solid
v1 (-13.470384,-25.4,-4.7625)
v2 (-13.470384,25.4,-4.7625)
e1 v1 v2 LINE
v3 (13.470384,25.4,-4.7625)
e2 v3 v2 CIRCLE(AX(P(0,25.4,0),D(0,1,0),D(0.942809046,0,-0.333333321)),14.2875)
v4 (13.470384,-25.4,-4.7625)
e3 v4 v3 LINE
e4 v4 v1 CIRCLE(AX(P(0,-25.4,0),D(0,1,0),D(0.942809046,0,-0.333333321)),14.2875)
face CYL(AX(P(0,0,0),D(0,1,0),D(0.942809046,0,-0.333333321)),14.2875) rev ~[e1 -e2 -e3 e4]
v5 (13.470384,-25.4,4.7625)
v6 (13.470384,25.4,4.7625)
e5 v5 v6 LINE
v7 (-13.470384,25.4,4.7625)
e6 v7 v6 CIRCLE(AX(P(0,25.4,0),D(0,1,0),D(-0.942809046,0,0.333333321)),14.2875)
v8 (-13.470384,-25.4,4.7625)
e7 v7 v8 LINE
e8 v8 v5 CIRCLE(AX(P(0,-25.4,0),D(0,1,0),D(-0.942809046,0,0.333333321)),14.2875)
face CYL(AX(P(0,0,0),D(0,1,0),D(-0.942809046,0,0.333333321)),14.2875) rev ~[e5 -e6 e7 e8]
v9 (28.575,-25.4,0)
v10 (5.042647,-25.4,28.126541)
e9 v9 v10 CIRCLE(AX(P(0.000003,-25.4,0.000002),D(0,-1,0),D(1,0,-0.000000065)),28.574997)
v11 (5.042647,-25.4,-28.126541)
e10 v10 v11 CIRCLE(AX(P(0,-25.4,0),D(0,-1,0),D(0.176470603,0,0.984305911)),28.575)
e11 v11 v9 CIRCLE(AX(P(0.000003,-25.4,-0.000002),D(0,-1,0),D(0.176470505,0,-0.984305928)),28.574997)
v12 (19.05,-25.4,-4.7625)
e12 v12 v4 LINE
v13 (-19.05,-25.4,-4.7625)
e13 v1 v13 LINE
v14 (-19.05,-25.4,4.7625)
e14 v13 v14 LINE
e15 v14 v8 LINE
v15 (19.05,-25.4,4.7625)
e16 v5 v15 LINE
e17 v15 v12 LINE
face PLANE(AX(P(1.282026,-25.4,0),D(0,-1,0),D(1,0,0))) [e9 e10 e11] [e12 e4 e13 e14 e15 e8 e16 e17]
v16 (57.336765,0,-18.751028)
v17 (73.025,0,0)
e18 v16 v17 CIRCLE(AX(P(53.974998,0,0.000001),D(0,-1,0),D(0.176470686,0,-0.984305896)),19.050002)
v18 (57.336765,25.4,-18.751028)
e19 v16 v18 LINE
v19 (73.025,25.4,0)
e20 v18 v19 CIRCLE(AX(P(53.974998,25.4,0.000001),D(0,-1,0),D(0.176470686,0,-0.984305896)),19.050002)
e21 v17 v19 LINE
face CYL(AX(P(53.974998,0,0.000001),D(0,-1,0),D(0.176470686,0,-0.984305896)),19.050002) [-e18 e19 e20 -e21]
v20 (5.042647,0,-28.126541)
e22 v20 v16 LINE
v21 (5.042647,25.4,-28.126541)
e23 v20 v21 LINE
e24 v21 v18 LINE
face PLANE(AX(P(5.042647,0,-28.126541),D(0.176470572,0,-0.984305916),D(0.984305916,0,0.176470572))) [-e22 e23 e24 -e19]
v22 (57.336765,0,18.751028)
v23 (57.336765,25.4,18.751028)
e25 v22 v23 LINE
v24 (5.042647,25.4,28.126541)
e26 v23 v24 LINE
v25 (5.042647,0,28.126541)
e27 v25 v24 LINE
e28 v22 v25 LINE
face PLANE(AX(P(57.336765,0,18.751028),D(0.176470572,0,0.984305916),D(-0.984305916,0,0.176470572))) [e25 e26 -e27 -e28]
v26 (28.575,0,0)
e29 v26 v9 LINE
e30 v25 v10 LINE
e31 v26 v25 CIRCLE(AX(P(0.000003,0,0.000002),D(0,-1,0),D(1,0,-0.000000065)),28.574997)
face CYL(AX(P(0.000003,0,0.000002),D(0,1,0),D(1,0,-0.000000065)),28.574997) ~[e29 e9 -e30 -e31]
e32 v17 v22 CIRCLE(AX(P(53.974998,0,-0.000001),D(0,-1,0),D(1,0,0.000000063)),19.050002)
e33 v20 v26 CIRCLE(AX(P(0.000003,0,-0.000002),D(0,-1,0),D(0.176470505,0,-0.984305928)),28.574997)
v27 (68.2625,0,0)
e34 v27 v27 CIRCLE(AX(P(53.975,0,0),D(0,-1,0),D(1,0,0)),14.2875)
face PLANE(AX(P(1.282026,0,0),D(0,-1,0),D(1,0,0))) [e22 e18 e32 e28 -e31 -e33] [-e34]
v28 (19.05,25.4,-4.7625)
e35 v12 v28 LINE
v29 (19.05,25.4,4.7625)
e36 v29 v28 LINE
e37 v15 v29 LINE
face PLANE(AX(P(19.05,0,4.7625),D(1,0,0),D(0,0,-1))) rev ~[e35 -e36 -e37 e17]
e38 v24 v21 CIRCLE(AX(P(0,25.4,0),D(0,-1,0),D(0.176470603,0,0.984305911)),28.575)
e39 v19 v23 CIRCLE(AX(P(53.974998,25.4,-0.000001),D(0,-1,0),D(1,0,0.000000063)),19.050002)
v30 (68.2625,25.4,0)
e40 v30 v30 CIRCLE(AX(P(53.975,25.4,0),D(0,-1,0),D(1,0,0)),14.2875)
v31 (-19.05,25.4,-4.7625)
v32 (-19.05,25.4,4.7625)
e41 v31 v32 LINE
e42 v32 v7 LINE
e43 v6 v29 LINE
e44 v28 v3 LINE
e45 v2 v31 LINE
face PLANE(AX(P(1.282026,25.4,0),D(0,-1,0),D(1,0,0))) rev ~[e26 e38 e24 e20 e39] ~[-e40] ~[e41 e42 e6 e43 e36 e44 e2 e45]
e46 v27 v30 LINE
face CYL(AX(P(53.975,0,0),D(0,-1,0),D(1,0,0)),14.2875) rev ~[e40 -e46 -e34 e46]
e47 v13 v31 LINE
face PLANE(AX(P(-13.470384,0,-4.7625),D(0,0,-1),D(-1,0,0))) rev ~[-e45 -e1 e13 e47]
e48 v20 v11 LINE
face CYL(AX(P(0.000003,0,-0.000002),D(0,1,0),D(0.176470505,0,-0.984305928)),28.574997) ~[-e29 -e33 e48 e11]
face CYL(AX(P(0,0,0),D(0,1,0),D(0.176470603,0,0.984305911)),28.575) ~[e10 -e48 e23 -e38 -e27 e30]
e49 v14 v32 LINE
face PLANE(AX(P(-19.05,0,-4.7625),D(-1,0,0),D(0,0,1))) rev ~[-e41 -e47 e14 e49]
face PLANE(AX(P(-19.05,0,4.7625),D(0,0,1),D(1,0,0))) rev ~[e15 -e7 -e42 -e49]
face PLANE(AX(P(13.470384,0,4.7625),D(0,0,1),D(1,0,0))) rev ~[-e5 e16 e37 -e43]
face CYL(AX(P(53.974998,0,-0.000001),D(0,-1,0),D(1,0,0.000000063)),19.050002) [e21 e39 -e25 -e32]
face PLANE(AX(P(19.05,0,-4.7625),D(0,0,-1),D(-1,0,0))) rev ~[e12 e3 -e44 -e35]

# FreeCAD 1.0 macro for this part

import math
import FreeCAD as App
import Part
import Sketcher

V = App.Vector
Q = App.Units.Quantity

doc = App.newDocument("Part")
body = doc.addObject("PartDesign::Body", "Body")

sketch1 = body.newObject("Sketcher::SketchObject", "Sketch")
sketch1.AttachmentSupport = (doc.getObject("XZ_Plane"), [""])
sketch1.MapMode = "FlatFace"
sketch1.addGeometry([
    Part.ArcOfCircle(Part.Circle(V(0, 0, 0), V(0, 0, 1), 28.575), math.radians(79.835751), math.radians(280.164249)),
    Part.LineSegment(V(5.042647, -28.126541, 0), V(57.336765, -18.751028, 0)),
    Part.ArcOfCircle(Part.Circle(V(53.974998, 0.000001, 0), V(0, 0, 1), 19.050002), math.radians(-79.835746), math.radians(-0.000004)),
    Part.ArcOfCircle(Part.Circle(V(53.974998, -0.000001, 0), V(0, 0, 1), 19.050002), math.radians(0.000004), math.radians(79.835746)),
    Part.LineSegment(V(57.336765, 18.751028, 0), V(5.042647, 28.126541, 0)),
    Part.LineSegment(V(-19.05, 4.7625, 0), V(-13.470384, 4.7625, 0)),
    Part.ArcOfCircle(Part.Circle(V(0, 0, 0), V(0, 0, 1), 14.2875), math.radians(19.47122), math.radians(160.52878)),
    Part.LineSegment(V(13.470384, 4.7625, 0), V(19.05, 4.7625, 0)),
    Part.LineSegment(V(19.05, 4.7625, 0), V(19.05, -4.7625, 0)),
    Part.LineSegment(V(19.05, -4.7625, 0), V(13.470384, -4.7625, 0)),
    Part.ArcOfCircle(Part.Circle(V(0, 0, 0), V(0, 0, 1), 14.2875), math.radians(-160.52878), math.radians(-19.47122)),
    Part.LineSegment(V(-13.470384, -4.7625, 0), V(-19.05, -4.7625, 0)),
    Part.LineSegment(V(-19.05, -4.7625, 0), V(-19.05, 4.7625, 0)),
    Part.Circle(V(53.975, 0, 0), V(0, 0, 1), 14.2875),
], False)
sketch1.addConstraint([
    Sketcher.Constraint("Tangent", 0, 2, 1, 1),
    Sketcher.Constraint("Tangent", 1, 2, 2, 1),
    Sketcher.Constraint("Tangent", 2, 2, 3, 1),
    Sketcher.Constraint("Tangent", 3, 2, 4, 1),
    Sketcher.Constraint("Tangent", 4, 2, 0, 1),
    Sketcher.Constraint("Coincident", 5, 2, 6, 2),
    Sketcher.Constraint("Coincident", 6, 1, 7, 1),
    Sketcher.Constraint("Coincident", 7, 2, 8, 1),
    Sketcher.Constraint("Coincident", 8, 2, 9, 1),
    Sketcher.Constraint("Coincident", 9, 2, 10, 2),
    Sketcher.Constraint("Coincident", 10, 1, 11, 1),
    Sketcher.Constraint("Coincident", 11, 2, 12, 1),
    Sketcher.Constraint("Coincident", 12, 2, 5, 1),
    Sketcher.Constraint("Horizontal", 5),
    Sketcher.Constraint("Horizontal", 7),
    Sketcher.Constraint("Vertical", 8),
    Sketcher.Constraint("Horizontal", 9),
    Sketcher.Constraint("Horizontal", 11),
    Sketcher.Constraint("Vertical", 12),
    Sketcher.Constraint("Coincident", 0, 3, -1, 1),
    Sketcher.Constraint("Coincident", 6, 3, -1, 1),
    Sketcher.Constraint("Coincident", 10, 3, -1, 1),
    Sketcher.Constraint("Coincident", 13, 3, 2, 3),
    Sketcher.Constraint("Equal", 2, 3),
    Sketcher.Constraint("Equal", 6, 10),
    Sketcher.Constraint("Equal", 10, 13),
    Sketcher.Constraint("Symmetric", 7, 2, 11, 2, -1, 1),
    Sketcher.Constraint("PointOnObject", 2, 3, -1),
    Sketcher.Constraint("PointOnObject", 2, 2, -1),
    Sketcher.Constraint("Horizontal", 5, 2, 6, 1),
    Sketcher.Constraint("Horizontal", 9, 2, 10, 1),
    Sketcher.Constraint("Radius", 2, Q("0.7500001 in")),
    Sketcher.Constraint("Diameter", 13, Q("1.125 in")),
    Sketcher.Constraint("Radius", 0, Q("1.125 in")),
    Sketcher.Constraint("DistanceY", 8, 2, 8, 1, Q("0.375 in")),
    Sketcher.Constraint("DistanceX", -1, 1, 7, 2, Q("0.75 in")),
    Sketcher.Constraint("DistanceX", -1, 1, 2, 3, Q("2.1249999 in")),
])
pad1 = body.newObject("PartDesign::Pad", "Pad")
pad1.Profile = sketch1
pad1.Length = Q("1 in")
pad1.Reversed = True

sketch2 = body.newObject("Sketcher::SketchObject", "Sketch001")
sketch2.AttachmentSupport = (doc.getObject("XZ_Plane"), [""])
sketch2.MapMode = "FlatFace"
sketch2.addGeometry([
    Part.ArcOfCircle(Part.Circle(V(0.000003, -0.000002, 0), V(0, 0, 1), 28.574997), math.radians(-79.835756), math.radians(0.000004)),
    Part.ArcOfCircle(Part.Circle(V(0.000003, 0.000002, 0), V(0, 0, 1), 28.574997), math.radians(-0.000004), math.radians(79.835756)),
    Part.ArcOfCircle(Part.Circle(V(0, 0, 0), V(0, 0, 1), 28.575), math.radians(79.835751), math.radians(280.164249)),
    Part.LineSegment(V(-19.05, 4.7625, 0), V(-13.470384, 4.7625, 0)),
    Part.ArcOfCircle(Part.Circle(V(0, 0, 0), V(0, 0, 1), 14.2875), math.radians(19.47122), math.radians(160.52878)),
    Part.LineSegment(V(13.470384, 4.7625, 0), V(19.05, 4.7625, 0)),
    Part.LineSegment(V(19.05, 4.7625, 0), V(19.05, -4.7625, 0)),
    Part.LineSegment(V(19.05, -4.7625, 0), V(13.470384, -4.7625, 0)),
    Part.ArcOfCircle(Part.Circle(V(0, 0, 0), V(0, 0, 1), 14.2875), math.radians(-160.52878), math.radians(-19.47122)),
    Part.LineSegment(V(-13.470384, -4.7625, 0), V(-19.05, -4.7625, 0)),
    Part.LineSegment(V(-19.05, -4.7625, 0), V(-19.05, 4.7625, 0)),
], False)
sketch2.addConstraint([
    Sketcher.Constraint("Tangent", 0, 2, 1, 1),
    Sketcher.Constraint("Tangent", 1, 2, 2, 1),
    Sketcher.Constraint("Tangent", 2, 2, 0, 1),
    Sketcher.Constraint("Coincident", 3, 2, 4, 2),
    Sketcher.Constraint("Coincident", 4, 1, 5, 1),
    Sketcher.Constraint("Coincident", 5, 2, 6, 1),
    Sketcher.Constraint("Coincident", 6, 2, 7, 1),
    Sketcher.Constraint("Coincident", 7, 2, 8, 2),
    Sketcher.Constraint("Coincident", 8, 1, 9, 1),
    Sketcher.Constraint("Coincident", 9, 2, 10, 1),
    Sketcher.Constraint("Coincident", 10, 2, 3, 1),
    Sketcher.Constraint("Horizontal", 3),
    Sketcher.Constraint("Horizontal", 5),
    Sketcher.Constraint("Vertical", 6),
    Sketcher.Constraint("Horizontal", 7),
    Sketcher.Constraint("Horizontal", 9),
    Sketcher.Constraint("Vertical", 10),
    Sketcher.Constraint("Coincident", 0, 3, -1, 1),
    Sketcher.Constraint("Coincident", 4, 3, -1, 1),
    Sketcher.Constraint("Coincident", 8, 3, -1, 1),
    Sketcher.Constraint("Equal", 4, 8),
    Sketcher.Constraint("Symmetric", 5, 2, 9, 2, -1, 1),
    Sketcher.Constraint("PointOnObject", 0, 2, -1),
    Sketcher.Constraint("Horizontal", 3, 2, 4, 1),
    Sketcher.Constraint("Horizontal", 7, 2, 8, 1),
    Sketcher.Constraint("Vertical", 1, 2, 2, 2),
    Sketcher.Constraint("Radius", 0, Q("1.1249999 in")),
    Sketcher.Constraint("Radius", 4, Q("0.5625 in")),
    Sketcher.Constraint("DistanceY", 6, 2, 6, 1, Q("0.375 in")),
    Sketcher.Constraint("DistanceX", -1, 1, 5, 2, Q("0.75 in")),
    Sketcher.Constraint("DistanceY", -1, 1, 1, 2, 28.126541),
])
pad2 = body.newObject("PartDesign::Pad", "Pad001")
pad2.Profile = sketch2
pad2.Length = Q("1 in")

doc.recompute()
